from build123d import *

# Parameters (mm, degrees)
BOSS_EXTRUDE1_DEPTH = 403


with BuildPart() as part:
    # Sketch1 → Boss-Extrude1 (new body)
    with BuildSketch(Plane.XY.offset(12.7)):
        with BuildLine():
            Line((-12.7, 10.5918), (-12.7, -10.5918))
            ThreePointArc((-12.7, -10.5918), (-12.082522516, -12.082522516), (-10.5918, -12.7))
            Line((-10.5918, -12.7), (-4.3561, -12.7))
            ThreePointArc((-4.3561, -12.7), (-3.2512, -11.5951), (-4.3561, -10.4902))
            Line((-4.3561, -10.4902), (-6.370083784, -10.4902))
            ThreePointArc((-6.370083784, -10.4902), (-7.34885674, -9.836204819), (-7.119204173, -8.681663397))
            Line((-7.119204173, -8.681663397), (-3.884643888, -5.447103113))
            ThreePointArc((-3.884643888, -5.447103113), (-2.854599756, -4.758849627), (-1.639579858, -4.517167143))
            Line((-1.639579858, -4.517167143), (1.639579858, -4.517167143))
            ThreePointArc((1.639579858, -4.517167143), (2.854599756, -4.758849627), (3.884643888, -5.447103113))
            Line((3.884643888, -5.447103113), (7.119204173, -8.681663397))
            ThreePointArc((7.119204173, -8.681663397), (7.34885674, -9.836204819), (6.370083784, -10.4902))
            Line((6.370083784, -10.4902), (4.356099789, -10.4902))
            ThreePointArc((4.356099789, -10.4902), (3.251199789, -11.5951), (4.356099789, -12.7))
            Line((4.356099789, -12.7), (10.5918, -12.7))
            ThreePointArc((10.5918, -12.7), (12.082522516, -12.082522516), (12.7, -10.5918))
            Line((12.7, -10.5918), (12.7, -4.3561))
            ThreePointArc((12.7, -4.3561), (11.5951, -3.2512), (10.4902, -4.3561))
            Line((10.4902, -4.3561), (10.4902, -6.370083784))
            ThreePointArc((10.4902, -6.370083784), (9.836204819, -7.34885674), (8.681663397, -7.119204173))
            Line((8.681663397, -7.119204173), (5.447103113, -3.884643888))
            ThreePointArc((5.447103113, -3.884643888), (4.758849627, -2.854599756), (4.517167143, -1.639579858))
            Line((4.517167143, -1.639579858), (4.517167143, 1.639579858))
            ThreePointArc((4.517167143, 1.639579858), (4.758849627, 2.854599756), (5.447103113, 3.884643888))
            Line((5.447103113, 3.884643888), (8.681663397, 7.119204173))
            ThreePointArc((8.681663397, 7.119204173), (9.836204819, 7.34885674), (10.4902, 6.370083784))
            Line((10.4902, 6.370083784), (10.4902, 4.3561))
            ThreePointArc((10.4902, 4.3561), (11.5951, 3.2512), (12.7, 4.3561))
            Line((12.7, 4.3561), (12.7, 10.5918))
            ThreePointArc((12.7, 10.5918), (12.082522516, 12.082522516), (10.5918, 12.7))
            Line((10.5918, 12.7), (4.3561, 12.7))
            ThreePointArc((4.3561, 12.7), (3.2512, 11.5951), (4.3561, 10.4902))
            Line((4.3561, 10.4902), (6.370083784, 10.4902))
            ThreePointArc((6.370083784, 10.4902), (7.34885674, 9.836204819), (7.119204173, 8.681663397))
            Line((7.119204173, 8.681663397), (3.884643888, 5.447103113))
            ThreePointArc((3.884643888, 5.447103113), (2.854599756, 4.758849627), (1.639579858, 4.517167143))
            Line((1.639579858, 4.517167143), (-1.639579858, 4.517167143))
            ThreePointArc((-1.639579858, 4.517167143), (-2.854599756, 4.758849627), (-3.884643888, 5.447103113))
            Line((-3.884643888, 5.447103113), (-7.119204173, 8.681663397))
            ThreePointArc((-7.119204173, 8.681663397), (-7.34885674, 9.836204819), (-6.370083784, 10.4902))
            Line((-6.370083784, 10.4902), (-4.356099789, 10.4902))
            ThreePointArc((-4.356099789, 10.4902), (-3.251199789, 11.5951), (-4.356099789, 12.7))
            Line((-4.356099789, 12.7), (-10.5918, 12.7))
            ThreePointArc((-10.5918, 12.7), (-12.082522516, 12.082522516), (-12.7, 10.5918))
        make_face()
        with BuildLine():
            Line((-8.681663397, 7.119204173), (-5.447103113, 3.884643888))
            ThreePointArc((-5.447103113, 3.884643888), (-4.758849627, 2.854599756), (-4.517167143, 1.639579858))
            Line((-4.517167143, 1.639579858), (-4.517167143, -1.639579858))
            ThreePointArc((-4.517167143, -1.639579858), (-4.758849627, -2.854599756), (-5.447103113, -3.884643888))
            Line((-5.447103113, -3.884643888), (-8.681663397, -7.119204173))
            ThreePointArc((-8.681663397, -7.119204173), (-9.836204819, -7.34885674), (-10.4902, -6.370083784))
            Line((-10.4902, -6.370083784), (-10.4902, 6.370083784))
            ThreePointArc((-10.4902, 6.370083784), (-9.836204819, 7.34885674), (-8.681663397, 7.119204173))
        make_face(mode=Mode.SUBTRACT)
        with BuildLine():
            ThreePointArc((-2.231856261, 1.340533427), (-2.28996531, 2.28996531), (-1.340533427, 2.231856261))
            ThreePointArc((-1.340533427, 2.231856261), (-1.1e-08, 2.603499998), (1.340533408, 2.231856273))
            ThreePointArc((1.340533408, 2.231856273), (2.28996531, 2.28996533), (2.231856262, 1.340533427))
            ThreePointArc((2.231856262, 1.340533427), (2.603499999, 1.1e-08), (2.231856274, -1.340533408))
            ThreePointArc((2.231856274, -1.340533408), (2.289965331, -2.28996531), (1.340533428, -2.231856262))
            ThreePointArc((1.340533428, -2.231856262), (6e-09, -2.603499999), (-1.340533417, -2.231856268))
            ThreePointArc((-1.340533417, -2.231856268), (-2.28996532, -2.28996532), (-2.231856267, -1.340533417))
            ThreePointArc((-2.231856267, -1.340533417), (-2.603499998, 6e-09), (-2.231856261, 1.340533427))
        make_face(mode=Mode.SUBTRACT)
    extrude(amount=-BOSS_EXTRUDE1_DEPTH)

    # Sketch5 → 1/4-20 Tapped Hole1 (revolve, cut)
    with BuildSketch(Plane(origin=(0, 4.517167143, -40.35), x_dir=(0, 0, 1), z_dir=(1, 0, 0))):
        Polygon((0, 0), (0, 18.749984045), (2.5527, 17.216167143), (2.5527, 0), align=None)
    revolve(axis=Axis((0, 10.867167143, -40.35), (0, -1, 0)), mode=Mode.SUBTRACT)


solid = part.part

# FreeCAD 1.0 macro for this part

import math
import FreeCAD as App
import Part
import Sketcher

V = App.Vector
Q = App.Units.Quantity

doc = App.newDocument("Part")
body = doc.addObject("PartDesign::Body", "Body")

sketch1 = body.newObject("Sketcher::SketchObject", "Sketch")
sketch1.AttachmentSupport = (doc.getObject("XY_Plane"), [""])
sketch1.MapMode = "FlatFace"
sketch1.AttachmentOffset = App.Placement(V(0, 0, 0.5 * 25.4), App.Rotation())
sketch1.addGeometry(Part.LineSegment(V(-12.7, 10.6, 0), V(-12.7, -10.6, 0)), False)
sketch1.addGeometry(Part.ArcOfCircle(Part.Circle(V(-10.6, -10.6, 0), V(0, 0, 1), 2.1), math.radians(180), math.radians(270)), False)
sketch1.addGeometry(Part.LineSegment(V(-10.6, -12.7, 0), V(-4.4, -12.7, 0)), False)
sketch1.addGeometry(Part.ArcOfCircle(Part.Circle(V(-4.4, -11.6, 0), V(0, 0, 1), 1.1), math.radians(-90), math.radians(90)), False)
sketch1.addGeometry(Part.LineSegment(V(-4.4, -10.5, 0), V(-6.4, -10.5, 0)), False)
sketch1.addGeometry(Part.ArcOfCircle(Part.Circle(V(-6.4, -9.4, 0), V(0, 0, 1), 1.1), math.radians(135), math.radians(270)), False)
sketch1.addGeometry(Part.LineSegment(V(-7.1, -8.7, 0), V(-3.9, -5.4, 0)), False)
sketch1.addGeometry(Part.ArcOfCircle(Part.Circle(V(-1.6, -7.7, 0), V(0, 0, 1), 3.2), math.radians(90), math.radians(135)), False)
sketch1.addGeometry(Part.LineSegment(V(-1.6, -4.5, 0), V(1.6, -4.5, 0)), False)
sketch1.addGeometry(Part.ArcOfCircle(Part.Circle(V(1.6, -7.7, 0), V(0, 0, 1), 3.2), math.radians(45), math.radians(90)), False)
sketch1.addGeometry(Part.LineSegment(V(3.9, -5.4, 0), V(7.1, -8.7, 0)), False)
sketch1.addGeometry(Part.ArcOfCircle(Part.Circle(V(6.4, -9.4, 0), V(0, 0, 1), 1.1), math.radians(-90), math.radians(45)), False)
sketch1.addGeometry(Part.LineSegment(V(6.4, -10.5, 0), V(4.4, -10.5, 0)), False)
sketch1.addGeometry(Part.ArcOfCircle(Part.Circle(V(4.4, -11.6, 0), V(0, 0, 1), 1.1), math.radians(90), math.radians(270)), False)
sketch1.addGeometry(Part.LineSegment(V(4.4, -12.7, 0), V(10.6, -12.7, 0)), False)
sketch1.addGeometry(Part.ArcOfCircle(Part.Circle(V(10.6, -10.6, 0), V(0, 0, 1), 2.1), math.radians(-90), math.radians(0)), False)
sketch1.addGeometry(Part.LineSegment(V(12.7, -10.6, 0), V(12.7, -4.4, 0)), False)
sketch1.addGeometry(Part.ArcOfCircle(Part.Circle(V(11.6, -4.4, 0), V(0, 0, 1), 1.1), math.radians(0), math.radians(180)), False)
sketch1.addGeometry(Part.LineSegment(V(10.5, -4.4, 0), V(10.5, -6.4, 0)), False)
sketch1.addGeometry(Part.ArcOfCircle(Part.Circle(V(9.4, -6.4, 0), V(0, 0, 1), 1.1), math.radians(-135), math.radians(0)), False)
sketch1.addGeometry(Part.LineSegment(V(8.7, -7.1, 0), V(5.4, -3.9, 0)), False)
sketch1.addGeometry(Part.ArcOfCircle(Part.Circle(V(7.7, -1.6, 0), V(0, 0, 1), 3.2), math.radians(180), math.radians(225)), False)
sketch1.addGeometry(Part.LineSegment(V(4.5, -1.6, 0), V(4.5, 1.6, 0)), False)
sketch1.addGeometry(Part.ArcOfCircle(Part.Circle(V(7.7, 1.6, 0), V(0, 0, 1), 3.2), math.radians(135), math.radians(180)), False)
sketch1.addGeometry(Part.LineSegment(V(5.4, 3.9, 0), V(8.7, 7.1, 0)), False)
sketch1.addGeometry(Part.ArcOfCircle(Part.Circle(V(9.4, 6.4, 0), V(0, 0, 1), 1.1), math.radians(0), math.radians(135)), False)
sketch1.addGeometry(Part.LineSegment(V(10.5, 6.4, 0), V(10.5, 4.4, 0)), False)
sketch1.addGeometry(Part.ArcOfCircle(Part.Circle(V(11.6, 4.4, 0), V(0, 0, 1), 1.1), math.radians(180), math.radians(360)), False)
sketch1.addGeometry(Part.LineSegment(V(12.7, 4.4, 0), V(12.7, 10.6, 0)), False)
sketch1.addGeometry(Part.ArcOfCircle(Part.Circle(V(10.6, 10.6, 0), V(0, 0, 1), 2.1), math.radians(0), math.radians(90)), False)
sketch1.addGeometry(Part.LineSegment(V(10.6, 12.7, 0), V(4.4, 12.7, 0)), False)
sketch1.addGeometry(Part.ArcOfCircle(Part.Circle(V(4.4, 11.6, 0), V(0, 0, 1), 1.1), math.radians(90), math.radians(270)), False)
sketch1.addGeometry(Part.LineSegment(V(4.4, 10.5, 0), V(6.4, 10.5, 0)), False)
sketch1.addGeometry(Part.ArcOfCircle(Part.Circle(V(6.4, 9.4, 0), V(0, 0, 1), 1.1), math.radians(-45), math.radians(90)), False)
sketch1.addGeometry(Part.LineSegment(V(7.1, 8.7, 0), V(3.9, 5.4, 0)), False)
sketch1.addGeometry(Part.ArcOfCircle(Part.Circle(V(1.6, 7.7, 0), V(0, 0, 1), 3.2), math.radians(-90), math.radians(-45)), False)
sketch1.addGeometry(Part.LineSegment(V(1.6, 4.5, 0), V(-1.6, 4.5, 0)), False)
sketch1.addGeometry(Part.ArcOfCircle(Part.Circle(V(-1.6, 7.7, 0), V(0, 0, 1), 3.2), math.radians(-135), math.radians(-90)), False)
sketch1.addGeometry(Part.LineSegment(V(-3.9, 5.4, 0), V(-7.1, 8.7, 0)), False)
sketch1.addGeometry(Part.ArcOfCircle(Part.Circle(V(-6.4, 9.4, 0), V(0, 0, 1), 1.1), math.radians(90), math.radians(225)), False)
sketch1.addGeometry(Part.LineSegment(V(-6.4, 10.5, 0), V(-4.4, 10.5, 0)), False)
sketch1.addGeometry(Part.ArcOfCircle(Part.Circle(V(-4.4, 11.6, 0), V(0, 0, 1), 1.1), math.radians(-90), math.radians(90)), False)
sketch1.addGeometry(Part.LineSegment(V(-4.4, 12.7, 0), V(-10.6, 12.7, 0)), False)
sketch1.addGeometry(Part.ArcOfCircle(Part.Circle(V(-10.6, 10.6, 0), V(0, 0, 1), 2.1), math.radians(90), math.radians(180)), False)
sketch1.addGeometry(Part.ArcOfCircle(Part.Circle(V(0, 0, 0), V(0, 0, 1), 2.6), math.radians(149), math.radians(211)), False)
sketch1.addGeometry(Part.ArcOfCircle(Part.Circle(V(-1.8, 1.8, 0), V(0, 0, 1), 0.6), math.radians(38), math.radians(232)), False)
sketch1.addGeometry(Part.ArcOfCircle(Part.Circle(V(0, 0, 0), V(0, 0, 1), 2.6), math.radians(59), math.radians(121)), False)
sketch1.addGeometry(Part.ArcOfCircle(Part.Circle(V(1.8, 1.8, 0), V(0, 0, 1), 0.6), math.radians(-52), math.radians(142)), False)
sketch1.addGeometry(Part.ArcOfCircle(Part.Circle(V(0, 0, 0), V(0, 0, 1), 2.6), math.radians(-31), math.radians(31)), False)
sketch1.addGeometry(Part.ArcOfCircle(Part.Circle(V(1.8, -1.8, 0), V(0, 0, 1), 0.6), math.radians(-142), math.radians(52)), False)
sketch1.addGeometry(Part.ArcOfCircle(Part.Circle(V(0, 0, 0), V(0, 0, 1), 2.6), math.radians(-121), math.radians(-59)), False)
sketch1.addGeometry(Part.ArcOfCircle(Part.Circle(V(-1.8, -1.8, 0), V(0, 0, 1), 0.6), math.radians(128), math.radians(322)), False)
sketch1.addGeometry(Part.ArcOfCircle(Part.Circle(V(-9.4, 6.4, 0), V(0, 0, 1), 1.1), math.radians(45), math.radians(180)), False)
sketch1.addGeometry(Part.LineSegment(V(-8.7, 7.1, 0), V(-5.4, 3.9, 0)), False)
sketch1.addGeometry(Part.ArcOfCircle(Part.Circle(V(-7.7, 1.6, 0), V(0, 0, 1), 3.2), math.radians(0), math.radians(45)), False)
sketch1.addGeometry(Part.LineSegment(V(-4.5, 1.6, 0), V(-4.5, -1.6, 0)), False)
sketch1.addGeometry(Part.ArcOfCircle(Part.Circle(V(-7.7, -1.6, 0), V(0, 0, 1), 3.2), math.radians(-45), math.radians(0)), False)
sketch1.addGeometry(Part.LineSegment(V(-5.4, -3.9, 0), V(-8.7, -7.1, 0)), False)
sketch1.addGeometry(Part.ArcOfCircle(Part.Circle(V(-9.4, -6.4, 0), V(0, 0, 1), 1.1), math.radians(-180), math.radians(-45)), False)
sketch1.addGeometry(Part.LineSegment(V(-10.5, -6.4, 0), V(-10.5, 6.4, 0)), False)
sketch1.addConstraint(Sketcher.Constraint("Tangent", 0, 2, 1, 1))
sketch1.addConstraint(Sketcher.Constraint("Tangent", 1, 2, 2, 1))
sketch1.addConstraint(Sketcher.Constraint("Tangent", 2, 2, 3, 1))
sketch1.addConstraint(Sketcher.Constraint("Tangent", 3, 2, 4, 1))
sketch1.addConstraint(Sketcher.Constraint("Tangent", 4, 2, 5, 2))
sketch1.addConstraint(Sketcher.Constraint("Tangent", 5, 1, 6, 1))
sketch1.addConstraint(Sketcher.Constraint("Tangent", 6, 2, 7, 2))
sketch1.addConstraint(Sketcher.Constraint("Tangent", 7, 1, 8, 1))
sketch1.addConstraint(Sketcher.Constraint("Tangent", 8, 2, 9, 2))
sketch1.addConstraint(Sketcher.Constraint("Tangent", 9, 1, 10, 1))
sketch1.addConstraint(Sketcher.Constraint("Tangent", 10, 2, 11, 2))
sketch1.addConstraint(Sketcher.Constraint("Tangent", 11, 1, 12, 1))
sketch1.addConstraint(Sketcher.Constraint("Tangent", 12, 2, 13, 1))
sketch1.addConstraint(Sketcher.Constraint("Tangent", 13, 2, 14, 1))
sketch1.addConstraint(Sketcher.Constraint("Tangent", 14, 2, 15, 1))
sketch1.addConstraint(Sketcher.Constraint("Tangent", 15, 2, 16, 1))
sketch1.addConstraint(Sketcher.Constraint("Tangent", 16, 2, 17, 1))
sketch1.addConstraint(Sketcher.Constraint("Tangent", 17, 2, 18, 1))
sketch1.addConstraint(Sketcher.Constraint("Tangent", 18, 2, 19, 2))
sketch1.addConstraint(Sketcher.Constraint("Tangent", 19, 1, 20, 1))
sketch1.addConstraint(Sketcher.Constraint("Tangent", 20, 2, 21, 2))
sketch1.addConstraint(Sketcher.Constraint("Tangent", 21, 1, 22, 1))
sketch1.addConstraint(Sketcher.Constraint("Tangent", 22, 2, 23, 2))
sketch1.addConstraint(Sketcher.Constraint("Tangent", 23, 1, 24, 1))
sketch1.addConstraint(Sketcher.Constraint("Tangent", 24, 2, 25, 2))
sketch1.addConstraint(Sketcher.Constraint("Tangent", 25, 1, 26, 1))
sketch1.addConstraint(Sketcher.Constraint("Tangent", 26, 2, 27, 1))
sketch1.addConstraint(Sketcher.Constraint("Tangent", 27, 2, 28, 1))
sketch1.addConstraint(Sketcher.Constraint("Tangent", 28, 2, 29, 1))
sketch1.addConstraint(Sketcher.Constraint("Tangent", 29, 2, 30, 1))
sketch1.addConstraint(Sketcher.Constraint("Tangent", 30, 2, 31, 1))
sketch1.addConstraint(Sketcher.Constraint("Tangent", 31, 2, 32, 1))
sketch1.addConstraint(Sketcher.Constraint("Tangent", 32, 2, 33, 2))
sketch1.addConstraint(Sketcher.Constraint("Tangent", 33, 1, 34, 1))
sketch1.addConstraint(Sketcher.Constraint("Tangent", 34, 2, 35, 2))
sketch1.addConstraint(Sketcher.Constraint("Tangent", 35, 1, 36, 1))
sketch1.addConstraint(Sketcher.Constraint("Tangent", 36, 2, 37, 2))
sketch1.addConstraint(Sketcher.Constraint("Tangent", 37, 1, 38, 1))
sketch1.addConstraint(Sketcher.Constraint("Tangent", 38, 2, 39, 2))
sketch1.addConstraint(Sketcher.Constraint("Tangent", 39, 1, 40, 1))
sketch1.addConstraint(Sketcher.Constraint("Tangent", 40, 2, 41, 1))
sketch1.addConstraint(Sketcher.Constraint("Tangent", 41, 2, 42, 1))
sketch1.addConstraint(Sketcher.Constraint("Tangent", 42, 2, 43, 1))
sketch1.addConstraint(Sketcher.Constraint("Tangent", 43, 2, 0, 1))
sketch1.addConstraint(Sketcher.Constraint("Coincident", 44, 1, 45, 2))
sketch1.addConstraint(Sketcher.Constraint("Coincident", 45, 1, 46, 2))
sketch1.addConstraint(Sketcher.Constraint("Coincident", 46, 1, 47, 2))
sketch1.addConstraint(Sketcher.Constraint("Coincident", 47, 1, 48, 2))
sketch1.addConstraint(Sketcher.Constraint("Coincident", 48, 1, 49, 2))
sketch1.addConstraint(Sketcher.Constraint("Coincident", 49, 1, 50, 2))
sketch1.addConstraint(Sketcher.Constraint("Coincident", 50, 1, 51, 2))
sketch1.addConstraint(Sketcher.Constraint("Coincident", 51, 1, 44, 2))
sketch1.addConstraint(Sketcher.Constraint("Tangent", 52, 1, 53, 1))
sketch1.addConstraint(Sketcher.Constraint("Tangent", 53, 2, 54, 2))
sketch1.addConstraint(Sketcher.Constraint("Tangent", 54, 1, 55, 1))
sketch1.addConstraint(Sketcher.Constraint("Tangent", 55, 2, 56, 2))
sketch1.addConstraint(Sketcher.Constraint("Tangent", 56, 1, 57, 1))
sketch1.addConstraint(Sketcher.Constraint("Tangent", 57, 2, 58, 2))
sketch1.addConstraint(Sketcher.Constraint("Tangent", 58, 1, 59, 1))
sketch1.addConstraint(Sketcher.Constraint("Tangent", 59, 2, 52, 2))
sketch1.addConstraint(Sketcher.Constraint("Vertical", 0))
sketch1.addConstraint(Sketcher.Constraint("Horizontal", 2))
sketch1.addConstraint(Sketcher.Constraint("Horizontal", 4))
sketch1.addConstraint(Sketcher.Constraint("Horizontal", 8))
sketch1.addConstraint(Sketcher.Constraint("Horizontal", 12))
sketch1.addConstraint(Sketcher.Constraint("Horizontal", 14))
sketch1.addConstraint(Sketcher.Constraint("Vertical", 16))
sketch1.addConstraint(Sketcher.Constraint("Vertical", 18))
sketch1.addConstraint(Sketcher.Constraint("Vertical", 22))
sketch1.addConstraint(Sketcher.Constraint("Vertical", 26))
sketch1.addConstraint(Sketcher.Constraint("Vertical", 28))
sketch1.addConstraint(Sketcher.Constraint("Horizontal", 30))
sketch1.addConstraint(Sketcher.Constraint("Horizontal", 32))
sketch1.addConstraint(Sketcher.Constraint("Horizontal", 36))
sketch1.addConstraint(Sketcher.Constraint("Horizontal", 40))
sketch1.addConstraint(Sketcher.Constraint("Horizontal", 42))
sketch1.addConstraint(Sketcher.Constraint("Vertical", 55))
sketch1.addConstraint(Sketcher.Constraint("Vertical", 59))
sketch1.addConstraint(Sketcher.Constraint("Coincident", 44, 3, -1, 1))
sketch1.addConstraint(Sketcher.Constraint("Coincident", 46, 3, -1, 1))
sketch1.addConstraint(Sketcher.Constraint("Coincident", 48, 3, -1, 1))
sketch1.addConstraint(Sketcher.Constraint("Coincident", 50, 3, -1, 1))
sketch1.addConstraint(Sketcher.Constraint("Equal", 7, 9))
sketch1.addConstraint(Sketcher.Constraint("Equal", 5, 11))
sketch1.addConstraint(Sketcher.Constraint("Equal", 3, 13))
sketch1.addConstraint(Sketcher.Constraint("Equal", 1, 15))
sketch1.addConstraint(Sketcher.Constraint("Equal", 13, 17))
sketch1.addConstraint(Sketcher.Constraint("Equal", 11, 19))
sketch1.addConstraint(Sketcher.Constraint("Equal", 9, 21))
sketch1.addConstraint(Sketcher.Constraint("Equal", 21, 23))
sketch1.addConstraint(Sketcher.Constraint("Equal", 19, 25))
sketch1.addConstraint(Sketcher.Constraint("Equal", 17, 27))
sketch1.addConstraint(Sketcher.Constraint("Equal", 15, 29))
sketch1.addConstraint(Sketcher.Constraint("Equal", 27, 31))
sketch1.addConstraint(Sketcher.Constraint("Equal", 25, 33))
sketch1.addConstraint(Sketcher.Constraint("Equal", 23, 35))
sketch1.addConstraint(Sketcher.Constraint("Equal", 35, 37))
sketch1.addConstraint(Sketcher.Constraint("Equal", 33, 39))
sketch1.addConstraint(Sketcher.Constraint("Equal", 31, 41))
sketch1.addConstraint(Sketcher.Constraint("Equal", 29, 43))
sketch1.addConstraint(Sketcher.Constraint("Equal", 44, 46))
sketch1.addConstraint(Sketcher.Constraint("Equal", 45, 47))
sketch1.addConstraint(Sketcher.Constraint("Equal", 46, 48))
sketch1.addConstraint(Sketcher.Constraint("Equal", 47, 49))
sketch1.addConstraint(Sketcher.Constraint("Equal", 48, 50))
sketch1.addConstraint(Sketcher.Constraint("Equal", 49, 51))
sketch1.addConstraint(Sketcher.Constraint("Equal", 39, 52))
sketch1.addConstraint(Sketcher.Constraint("Equal", 37, 54))
sketch1.addConstraint(Sketcher.Constraint("Equal", 54, 56))
sketch1.addConstraint(Sketcher.Constraint("Equal", 52, 58))
sketch1.addConstraint(Sketcher.Constraint("Symmetric", 1, 3, 29, 3, -1, 1))
sketch1.addConstraint(Sketcher.Constraint("Symmetric", 7, 3, 35, 3, -1, 1))
sketch1.addConstraint(Sketcher.Constraint("Symmetric", 11, 3, 39, 3, -1, 1))
sketch1.addConstraint(Sketcher.Constraint("Symmetric", 45, 3, 49, 3, -1, 1))
sketch1.addConstraint(Sketcher.Constraint("Symmetric", 47, 3, 51, 3, -1, 1))
sketch1.addConstraint(Sketcher.Constraint("Symmetric", 19, 3, 52, 3, -1, 1))
sketch1.addConstraint(Sketcher.Constraint("Symmetric", 21, 3, 54, 3, -1, 1))
sketch1.addConstraint(Sketcher.Constraint("Symmetric", 25, 3, 58, 3, -1, 1))
sketch1.addConstraint(Sketcher.Constraint("Symmetric", 5, 3, 11, 3, -2))
sketch1.addConstraint(Sketcher.Constraint("Symmetric", 45, 3, 47, 3, -2))
sketch1.addConstraint(Sketcher.Constraint("Symmetric", 34, 2, 37, 1, -2))
sketch1.addConstraint(Sketcher.Constraint("Symmetric", 24, 2, 52, 1, -2))
sketch1.addConstraint(Sketcher.Constraint("Perpendicular", 6, 10))
sketch1.addConstraint(Sketcher.Constraint("Parallel", 10, 20))
sketch1.addConstraint(Sketcher.Constraint("Perpendicular", 20, 24))
sketch1.addConstraint(Sketcher.Constraint("Perpendicular", 53, 57))
sketch1.addConstraint(Sketcher.Constraint("Vertical", 13, 3, 31, 3))
sketch1.addConstraint(Sketcher.Constraint("Vertical", 3, 3, 41, 3))
sketch1.addConstraint(Sketcher.Constraint("Equal", 4, 12))
sketch1.addConstraint(Sketcher.Constraint("Equal", 42, 16))
sketch1.addConstraint(Sketcher.Constraint("Equal", 40, 18))
sketch1.addConstraint(Sketcher.Constraint("Equal", 36, 22))
sketch1.addConstraint(Sketcher.Constraint("Equal", 18, 26))
sketch1.addConstraint(Sketcher.Constraint("Equal", 10, 20))
sketch1.addConstraint(Sketcher.Constraint("Radius", 1, Q("0.083 in")))
sketch1.addConstraint(Sketcher.Constraint("Radius", 7, Q("0.125 in")))
sketch1.addConstraint(Sketcher.Constraint("Radius", 45, Q("0.025 in")))
sketch1.addConstraint(Sketcher.Constraint("DistanceX", 0, 2, -1, 1, Q("0.5 in")))
sketch1.addConstraint(Sketcher.Constraint("Radius", 3, Q("0.0435 in")))
sketch1.addConstraint(Sketcher.Constraint("Radius", 44, Q("0.1025 in")))
sketch1.addConstraint(Sketcher.Constraint("DistanceX", 2, 1, 2, 2, Q("0.2455 in")))
sketch1.addConstraint(Sketcher.Constraint("Radius", 5, 1.059416))
sketch1.addConstraint(Sketcher.Constraint("DistanceX", 8, 1, 8, 2, 3.27916))
sketch1.addConstraint(Sketcher.Constraint("Distance", 6, 4.574359))
sketch1.addConstraint(Sketcher.Constraint("DistanceX", 45, 3, -1, 1, 1.840953))
sketch1.addConstraint(Sketcher.Constraint("DistanceY", -1, 1, 45, 3, 1.840953))
pad1 = body.newObject("PartDesign::Pad", "Pad")
pad1.Profile = sketch1
pad1.Length = 403
pad1.Reversed = True

sketch2 = body.newObject("Sketcher::SketchObject", "Sketch001")
sketch2.AttachmentSupport = (doc.getObject("YZ_Plane"), [""])
sketch2.MapMode = "FlatFace"
sketch2.addGeometry(Part.LineSegment(V(-14.2, -40.4, 0), V(4.5, -40.4, 0)), False)
sketch2.addGeometry(Part.LineSegment(V(4.5, -40.4, 0), V(4.5, -37.8, 0)), False)
sketch2.addGeometry(Part.LineSegment(V(4.5, -37.8, 0), V(-12.7, -37.8, 0)), False)
sketch2.addGeometry(Part.LineSegment(V(-12.7, -37.8, 0), V(-14.2, -40.4, 0)), False)
sketch2.addGeometry(Part.LineSegment(V(4.5, -40.4, 0), V(-14.2, -40.4, 0)), True)
sketch2.addConstraint(Sketcher.Constraint("Coincident", 0, 2, 1, 1))
sketch2.addConstraint(Sketcher.Constraint("Coincident", 1, 2, 2, 1))
sketch2.addConstraint(Sketcher.Constraint("Coincident", 2, 2, 3, 1))
sketch2.addConstraint(Sketcher.Constraint("Coincident", 3, 2, 0, 1))
sketch2.addConstraint(Sketcher.Constraint("Horizontal", 0))
sketch2.addConstraint(Sketcher.Constraint("Vertical", 1))
sketch2.addConstraint(Sketcher.Constraint("Horizontal", 2))
sketch2.addConstraint(Sketcher.Constraint("Horizontal", 4))
sketch2.addConstraint(Sketcher.Constraint("Coincident", 4, 1, 0, 2))
sketch2.addConstraint(Sketcher.Constraint("Equal", 0, 4))
sketch2.addConstraint(Sketcher.Constraint("Angle", 3, Q("-121 deg")))
sketch2.addConstraint(Sketcher.Constraint("DistanceY", 1, 1, 1, 2, Q("0.1005 in")))
sketch2.addConstraint(Sketcher.Constraint("DistanceY", 0, 2, -1, 1, 40.35))
sketch2.addConstraint(Sketcher.Constraint("DistanceX", 2, 2, -1, 1, 12.699))
sketch2.addConstraint(Sketcher.Constraint("DistanceX", 0, 1, 0, 2, 18.749984))
groove = body.newObject("PartDesign::Groove", "Groove")
groove.Profile = sketch2
groove.ReferenceAxis = (sketch2, ["Axis0"])
groove.Angle = 360

doc.recompute()
